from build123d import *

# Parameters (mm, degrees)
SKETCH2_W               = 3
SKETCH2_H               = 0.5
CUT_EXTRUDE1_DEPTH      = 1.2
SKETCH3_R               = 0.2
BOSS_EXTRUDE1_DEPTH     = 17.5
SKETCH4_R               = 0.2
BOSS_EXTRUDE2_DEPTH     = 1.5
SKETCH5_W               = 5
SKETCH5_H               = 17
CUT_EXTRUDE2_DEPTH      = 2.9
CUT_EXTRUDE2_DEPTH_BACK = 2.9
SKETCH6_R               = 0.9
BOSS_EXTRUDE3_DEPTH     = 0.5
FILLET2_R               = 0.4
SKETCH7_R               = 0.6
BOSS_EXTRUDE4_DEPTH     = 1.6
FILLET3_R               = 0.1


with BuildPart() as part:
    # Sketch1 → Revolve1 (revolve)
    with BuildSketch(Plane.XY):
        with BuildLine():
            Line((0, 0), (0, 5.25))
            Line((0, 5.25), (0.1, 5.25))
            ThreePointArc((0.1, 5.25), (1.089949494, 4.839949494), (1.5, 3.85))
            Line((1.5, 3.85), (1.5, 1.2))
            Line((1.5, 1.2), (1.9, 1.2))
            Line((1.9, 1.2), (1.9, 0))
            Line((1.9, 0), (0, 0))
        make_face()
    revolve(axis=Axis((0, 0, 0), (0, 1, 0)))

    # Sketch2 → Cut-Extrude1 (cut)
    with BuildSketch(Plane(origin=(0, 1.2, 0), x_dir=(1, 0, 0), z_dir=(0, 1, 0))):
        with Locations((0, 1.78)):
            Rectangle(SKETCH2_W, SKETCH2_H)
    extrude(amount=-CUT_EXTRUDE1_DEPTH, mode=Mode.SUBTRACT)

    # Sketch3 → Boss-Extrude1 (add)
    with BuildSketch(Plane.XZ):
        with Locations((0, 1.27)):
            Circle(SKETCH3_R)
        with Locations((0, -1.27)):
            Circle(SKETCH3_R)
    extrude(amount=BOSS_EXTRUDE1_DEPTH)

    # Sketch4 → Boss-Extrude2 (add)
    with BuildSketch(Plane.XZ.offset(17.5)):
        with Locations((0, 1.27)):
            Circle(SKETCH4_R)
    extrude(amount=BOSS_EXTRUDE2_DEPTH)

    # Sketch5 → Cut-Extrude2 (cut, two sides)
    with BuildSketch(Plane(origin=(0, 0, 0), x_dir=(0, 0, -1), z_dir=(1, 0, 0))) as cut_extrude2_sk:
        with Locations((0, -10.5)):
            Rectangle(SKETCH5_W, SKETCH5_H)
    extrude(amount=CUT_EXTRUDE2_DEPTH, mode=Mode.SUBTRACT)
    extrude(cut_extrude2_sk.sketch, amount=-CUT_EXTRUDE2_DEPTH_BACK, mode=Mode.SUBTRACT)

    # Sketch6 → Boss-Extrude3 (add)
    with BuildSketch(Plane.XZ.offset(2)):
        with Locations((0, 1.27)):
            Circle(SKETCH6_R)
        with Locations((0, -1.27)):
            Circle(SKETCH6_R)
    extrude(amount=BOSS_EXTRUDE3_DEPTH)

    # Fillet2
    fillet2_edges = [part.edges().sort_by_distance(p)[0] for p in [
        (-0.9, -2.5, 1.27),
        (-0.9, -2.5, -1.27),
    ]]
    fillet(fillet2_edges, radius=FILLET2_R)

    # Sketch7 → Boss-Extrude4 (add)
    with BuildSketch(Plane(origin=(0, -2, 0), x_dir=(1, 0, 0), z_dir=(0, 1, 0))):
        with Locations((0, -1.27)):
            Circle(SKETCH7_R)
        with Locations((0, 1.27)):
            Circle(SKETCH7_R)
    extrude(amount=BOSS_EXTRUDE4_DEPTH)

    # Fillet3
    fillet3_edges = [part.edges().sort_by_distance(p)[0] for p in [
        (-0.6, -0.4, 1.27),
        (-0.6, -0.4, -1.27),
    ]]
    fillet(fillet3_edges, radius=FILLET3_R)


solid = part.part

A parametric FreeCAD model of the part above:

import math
import FreeCAD as App
import Part
import Sketcher

V = App.Vector


def edges_at(feature, points):
    """Names of the edges that pass closest to the given points."""
    edges = feature.Shape.Edges
    near = lambda p: min(range(len(edges)), key=lambda i: edges[i].distToShape(Part.Vertex(*p))[0])
    return sorted({f"Edge{near(p) + 1}" for p in points})

doc = App.newDocument("Part")
body = doc.addObject("PartDesign::Body", "Body")

# Sketch on XY plane
sketch1 = doc.addObject("Sketcher::SketchObject", "Sketch")
body.addObject(sketch1)
sketch1.AttachmentSupport = (doc.XY_Plane, [""])
sketch1.MapMode = "FlatFace"
sketch1.addGeometry(Part.LineSegment(V(0, 5.25, 0), V(0, 0, 0)), False)
sketch1.addGeometry(Part.LineSegment(V(0, 0, 0), V(1.9, 0, 0)), False)
sketch1.addGeometry(Part.LineSegment(V(1.9, 0, 0), V(1.9, 1.2, 0)), False)
sketch1.addGeometry(Part.LineSegment(V(1.9, 1.2, 0), V(1.5, 1.2, 0)), False)
sketch1.addGeometry(Part.LineSegment(V(1.5, 1.2, 0), V(1.5, 3.85, 0)), False)
sketch1.addGeometry(Part.ArcOfCircle(Part.Circle(V(0.1, 3.85, 0), V(0, 0, 1), 1.4), math.radians(0), math.radians(90)), False)
sketch1.addGeometry(Part.LineSegment(V(0.1, 5.25, 0), V(0, 5.25, 0)), False)
sketch1.addConstraint(Sketcher.Constraint("Coincident", 0, 2, 1, 1))
sketch1.addConstraint(Sketcher.Constraint("Coincident", 1, 2, 2, 1))
sketch1.addConstraint(Sketcher.Constraint("Coincident", 2, 2, 3, 1))
sketch1.addConstraint(Sketcher.Constraint("Coincident", 3, 2, 4, 1))
sketch1.addConstraint(Sketcher.Constraint("Tangent", 4, 2, 5, 1))
sketch1.addConstraint(Sketcher.Constraint("Tangent", 5, 2, 6, 1))
sketch1.addConstraint(Sketcher.Constraint("Coincident", 6, 2, 0, 1))
sketch1.addConstraint(Sketcher.Constraint("Vertical", 0))
sketch1.addConstraint(Sketcher.Constraint("Horizontal", 1))
sketch1.addConstraint(Sketcher.Constraint("Vertical", 2))
sketch1.addConstraint(Sketcher.Constraint("Horizontal", 3))
sketch1.addConstraint(Sketcher.Constraint("Vertical", 4))
sketch1.addConstraint(Sketcher.Constraint("Horizontal", 6))
sketch1.addConstraint(Sketcher.Constraint("Coincident", 0, 2, -1, 1))
sketch1.addConstraint(Sketcher.Constraint("Radius", 5, 1.4))
sketch1.addConstraint(Sketcher.Constraint("DistanceX", 1, 1, 1, 2, 1.9))
sketch1.addConstraint(Sketcher.Constraint("DistanceX", 3, 2, 3, 1, 0.4))
sketch1.addConstraint(Sketcher.Constraint("DistanceY", 2, 1, 2, 2, 1.2))
sketch1.addConstraint(Sketcher.Constraint("DistanceY", 0, 2, 0, 1, 5.25))
revolution = doc.addObject("PartDesign::Revolution", "Revolution")
body.addObject(revolution)
revolution.Profile = sketch1
revolution.ReferenceAxis = (sketch1, ["V_Axis"])
revolution.Angle = 360

# Sketch on XZ plane
sketch2 = doc.addObject("Sketcher::SketchObject", "Sketch001")
body.addObject(sketch2)
sketch2.AttachmentSupport = (doc.XZ_Plane, [""])
sketch2.MapMode = "FlatFace"
sketch2.AttachmentOffset = App.Placement(V(0, 0, -1.2), App.Rotation())
sketch2.addGeometry(Part.LineSegment(V(-1.5, -2.03, 0), V(-1.5, -1.53, 0)), False)
sketch2.addGeometry(Part.LineSegment(V(-1.5, -1.53, 0), V(1.5, -1.53, 0)), False)
sketch2.addGeometry(Part.LineSegment(V(1.5, -1.53, 0), V(1.5, -2.03, 0)), False)
sketch2.addGeometry(Part.LineSegment(V(1.5, -2.03, 0), V(-1.5, -2.03, 0)), False)
sketch2.addConstraint(Sketcher.Constraint("Coincident", 0, 2, 1, 1))
sketch2.addConstraint(Sketcher.Constraint("Coincident", 1, 2, 2, 1))
sketch2.addConstraint(Sketcher.Constraint("Coincident", 2, 2, 3, 1))
sketch2.addConstraint(Sketcher.Constraint("Coincident", 3, 2, 0, 1))
sketch2.addConstraint(Sketcher.Constraint("Vertical", 0))
sketch2.addConstraint(Sketcher.Constraint("Horizontal", 1))
sketch2.addConstraint(Sketcher.Constraint("Vertical", 2))
sketch2.addConstraint(Sketcher.Constraint("Horizontal", 3))
sketch2.addConstraint(Sketcher.Constraint("DistanceX", 1, 1, 1, 2, 3.0))
sketch2.addConstraint(Sketcher.Constraint("DistanceY", 0, 1, 0, 2, 0.5))
sketch2.addConstraint(Sketcher.Constraint("DistanceX", 0, 2, -1, 1, 1.5))
sketch2.addConstraint(Sketcher.Constraint("DistanceY", 0, 2, -1, 1, 1.53))
pocket1 = doc.addObject("PartDesign::Pocket", "Pocket")
body.addObject(pocket1)
pocket1.Profile = sketch2
pocket1.Length = 1.2
pocket1.Reversed = True

# Sketch on XZ plane
sketch3 = doc.addObject("Sketcher::SketchObject", "Sketch002")
body.addObject(sketch3)
sketch3.AttachmentSupport = (doc.XZ_Plane, [""])
sketch3.MapMode = "FlatFace"
sketch3.addGeometry(Part.Circle(V(0, 1.27, 0), V(0, 0, 1), 0.2), False)
sketch3.addGeometry(Part.Circle(V(0, -1.27, 0), V(0, 0, 1), 0.2), False)
sketch3.addConstraint(Sketcher.Constraint("Equal", 0, 1))
sketch3.addConstraint(Sketcher.Constraint("Symmetric", 0, 3, 1, 3, -1, 1))
sketch3.addConstraint(Sketcher.Constraint("PointOnObject", 0, 3, -2))
sketch3.addConstraint(Sketcher.Constraint("Diameter", 0, 0.4))
sketch3.addConstraint(Sketcher.Constraint("DistanceY", -1, 1, 0, 3, 1.27))
pad1 = doc.addObject("PartDesign::Pad", "Pad")
body.addObject(pad1)
pad1.Profile = sketch3
pad1.Length = 17.5

# Sketch on XZ plane
sketch4 = doc.addObject("Sketcher::SketchObject", "Sketch003")
body.addObject(sketch4)
sketch4.AttachmentSupport = (doc.XZ_Plane, [""])
sketch4.MapMode = "FlatFace"
sketch4.AttachmentOffset = App.Placement(V(0, 0, 17.5), App.Rotation())
sketch4.addGeometry(Part.Circle(V(0, 1.27, 0), V(0, 0, 1), 0.2), False)
sketch4.addConstraint(Sketcher.Constraint("PointOnObject", 0, 3, -2))
sketch4.addConstraint(Sketcher.Constraint("Diameter", 0, 0.4))
sketch4.addConstraint(Sketcher.Constraint("DistanceY", -1, 1, 0, 3, 1.27))
pad2 = doc.addObject("PartDesign::Pad", "Pad001")
body.addObject(pad2)
pad2.Profile = sketch4
pad2.Length = 1.5

# Sketch on YZ plane
sketch5 = doc.addObject("Sketcher::SketchObject", "Sketch004")
body.addObject(sketch5)
sketch5.AttachmentSupport = (doc.YZ_Plane, [""])
sketch5.MapMode = "FlatFace"
sketch5.addGeometry(Part.LineSegment(V(-2, 2, 0), V(-19, 2, 0)), False)
sketch5.addGeometry(Part.LineSegment(V(-19, 2, 0), V(-19, -2, 0)), False)
sketch5.addGeometry(Part.LineSegment(V(-19, -2, 0), V(-2, -2, 0)), False)
sketch5.addGeometry(Part.LineSegment(V(-2, -2, 0), V(-2, 2, 0)), False)
sketch5.addConstraint(Sketcher.Constraint("Coincident", 0, 2, 1, 1))
sketch5.addConstraint(Sketcher.Constraint("Coincident", 1, 2, 2, 1))
sketch5.addConstraint(Sketcher.Constraint("Coincident", 2, 2, 3, 1))
sketch5.addConstraint(Sketcher.Constraint("Coincident", 3, 2, 0, 1))
sketch5.addConstraint(Sketcher.Constraint("Horizontal", 0))
sketch5.addConstraint(Sketcher.Constraint("Vertical", 1))
sketch5.addConstraint(Sketcher.Constraint("Horizontal", 2))
sketch5.addConstraint(Sketcher.Constraint("Vertical", 3))
sketch5.addConstraint(Sketcher.Constraint("DistanceX", 0, 2, 0, 1, 17.0))
sketch5.addConstraint(Sketcher.Constraint("DistanceY", 1, 2, 1, 1, 5.0))
sketch5.addConstraint(Sketcher.Constraint("DistanceX", 0, 2, -1, 1, 19.0))
sketch5.addConstraint(Sketcher.Constraint("DistanceY", -1, 1, 0, 2, 2.5))
pocket2 = doc.addObject("PartDesign::Pocket", "Pocket001")
body.addObject(pocket2)
pocket2.Profile = sketch5
pocket2.Type = "ThroughAll"
pocket2.Midplane = True

# Sketch on XZ plane
sketch6 = doc.addObject("Sketcher::SketchObject", "Sketch005")
body.addObject(sketch6)
sketch6.AttachmentSupport = (doc.XZ_Plane, [""])
sketch6.MapMode = "FlatFace"
sketch6.AttachmentOffset = App.Placement(V(0, 0, 2), App.Rotation())
sketch6.addGeometry(Part.Circle(V(0, 1.3, 0), V(0, 0, 1), 0.9), False)
sketch6.addGeometry(Part.Circle(V(0, -1.3, 0), V(0, 0, 1), 0.9), False)
sketch6.addConstraint(Sketcher.Constraint("Equal", 0, 1))
sketch6.addConstraint(Sketcher.Constraint("Symmetric", 0, 3, 1, 3, -1, 1))
sketch6.addConstraint(Sketcher.Constraint("PointOnObject", 0, 3, -2))
sketch6.addConstraint(Sketcher.Constraint("Diameter", 0, 1.8))
sketch6.addConstraint(Sketcher.Constraint("DistanceY", -1, 1, 0, 3, 1.27))
pad3 = doc.addObject("PartDesign::Pad", "Pad002")
body.addObject(pad3)
pad3.Profile = sketch6
pad3.Length = 0.5
doc.recompute()

fillet = doc.addObject("PartDesign::Fillet", "Fillet")
body.addObject(fillet)
fillet.Base = (pad3, edges_at(pad3, [(-0.9, -2.5, 1.27), (-0.9, -2.5, -1.27)]))
fillet.Radius = 0.4

# Sketch on XZ plane
sketch7 = doc.addObject("Sketcher::SketchObject", "Sketch006")
body.addObject(sketch7)
sketch7.AttachmentSupport = (doc.XZ_Plane, [""])
sketch7.MapMode = "FlatFace"
sketch7.AttachmentOffset = App.Placement(V(0, 0, 2), App.Rotation())
sketch7.addGeometry(Part.Circle(V(0, 1.3, 0), V(0, 0, 1), 0.6), False)
sketch7.addGeometry(Part.Circle(V(0, -1.3, 0), V(0, 0, 1), 0.6), False)
sketch7.addConstraint(Sketcher.Constraint("Equal", 0, 1))
sketch7.addConstraint(Sketcher.Constraint("Symmetric", 0, 3, 1, 3, -1, 1))
sketch7.addConstraint(Sketcher.Constraint("PointOnObject", 0, 3, -2))
sketch7.addConstraint(Sketcher.Constraint("Diameter", 0, 1.2))
sketch7.addConstraint(Sketcher.Constraint("DistanceY", -1, 1, 0, 3, 1.27))
pad4 = doc.addObject("PartDesign::Pad", "Pad003")
body.addObject(pad4)
pad4.Profile = sketch7
pad4.Length = 1.6
pad4.Reversed = True
doc.recompute()

fillet2 = doc.addObject("PartDesign::Fillet", "Fillet001")
body.addObject(fillet2)
fillet2.Base = (pad4, edges_at(pad4, [(-0.6, -0.4, 1.27), (-0.6, -0.4, -1.27)]))
fillet2.Radius = 0.1

doc.recompute()
